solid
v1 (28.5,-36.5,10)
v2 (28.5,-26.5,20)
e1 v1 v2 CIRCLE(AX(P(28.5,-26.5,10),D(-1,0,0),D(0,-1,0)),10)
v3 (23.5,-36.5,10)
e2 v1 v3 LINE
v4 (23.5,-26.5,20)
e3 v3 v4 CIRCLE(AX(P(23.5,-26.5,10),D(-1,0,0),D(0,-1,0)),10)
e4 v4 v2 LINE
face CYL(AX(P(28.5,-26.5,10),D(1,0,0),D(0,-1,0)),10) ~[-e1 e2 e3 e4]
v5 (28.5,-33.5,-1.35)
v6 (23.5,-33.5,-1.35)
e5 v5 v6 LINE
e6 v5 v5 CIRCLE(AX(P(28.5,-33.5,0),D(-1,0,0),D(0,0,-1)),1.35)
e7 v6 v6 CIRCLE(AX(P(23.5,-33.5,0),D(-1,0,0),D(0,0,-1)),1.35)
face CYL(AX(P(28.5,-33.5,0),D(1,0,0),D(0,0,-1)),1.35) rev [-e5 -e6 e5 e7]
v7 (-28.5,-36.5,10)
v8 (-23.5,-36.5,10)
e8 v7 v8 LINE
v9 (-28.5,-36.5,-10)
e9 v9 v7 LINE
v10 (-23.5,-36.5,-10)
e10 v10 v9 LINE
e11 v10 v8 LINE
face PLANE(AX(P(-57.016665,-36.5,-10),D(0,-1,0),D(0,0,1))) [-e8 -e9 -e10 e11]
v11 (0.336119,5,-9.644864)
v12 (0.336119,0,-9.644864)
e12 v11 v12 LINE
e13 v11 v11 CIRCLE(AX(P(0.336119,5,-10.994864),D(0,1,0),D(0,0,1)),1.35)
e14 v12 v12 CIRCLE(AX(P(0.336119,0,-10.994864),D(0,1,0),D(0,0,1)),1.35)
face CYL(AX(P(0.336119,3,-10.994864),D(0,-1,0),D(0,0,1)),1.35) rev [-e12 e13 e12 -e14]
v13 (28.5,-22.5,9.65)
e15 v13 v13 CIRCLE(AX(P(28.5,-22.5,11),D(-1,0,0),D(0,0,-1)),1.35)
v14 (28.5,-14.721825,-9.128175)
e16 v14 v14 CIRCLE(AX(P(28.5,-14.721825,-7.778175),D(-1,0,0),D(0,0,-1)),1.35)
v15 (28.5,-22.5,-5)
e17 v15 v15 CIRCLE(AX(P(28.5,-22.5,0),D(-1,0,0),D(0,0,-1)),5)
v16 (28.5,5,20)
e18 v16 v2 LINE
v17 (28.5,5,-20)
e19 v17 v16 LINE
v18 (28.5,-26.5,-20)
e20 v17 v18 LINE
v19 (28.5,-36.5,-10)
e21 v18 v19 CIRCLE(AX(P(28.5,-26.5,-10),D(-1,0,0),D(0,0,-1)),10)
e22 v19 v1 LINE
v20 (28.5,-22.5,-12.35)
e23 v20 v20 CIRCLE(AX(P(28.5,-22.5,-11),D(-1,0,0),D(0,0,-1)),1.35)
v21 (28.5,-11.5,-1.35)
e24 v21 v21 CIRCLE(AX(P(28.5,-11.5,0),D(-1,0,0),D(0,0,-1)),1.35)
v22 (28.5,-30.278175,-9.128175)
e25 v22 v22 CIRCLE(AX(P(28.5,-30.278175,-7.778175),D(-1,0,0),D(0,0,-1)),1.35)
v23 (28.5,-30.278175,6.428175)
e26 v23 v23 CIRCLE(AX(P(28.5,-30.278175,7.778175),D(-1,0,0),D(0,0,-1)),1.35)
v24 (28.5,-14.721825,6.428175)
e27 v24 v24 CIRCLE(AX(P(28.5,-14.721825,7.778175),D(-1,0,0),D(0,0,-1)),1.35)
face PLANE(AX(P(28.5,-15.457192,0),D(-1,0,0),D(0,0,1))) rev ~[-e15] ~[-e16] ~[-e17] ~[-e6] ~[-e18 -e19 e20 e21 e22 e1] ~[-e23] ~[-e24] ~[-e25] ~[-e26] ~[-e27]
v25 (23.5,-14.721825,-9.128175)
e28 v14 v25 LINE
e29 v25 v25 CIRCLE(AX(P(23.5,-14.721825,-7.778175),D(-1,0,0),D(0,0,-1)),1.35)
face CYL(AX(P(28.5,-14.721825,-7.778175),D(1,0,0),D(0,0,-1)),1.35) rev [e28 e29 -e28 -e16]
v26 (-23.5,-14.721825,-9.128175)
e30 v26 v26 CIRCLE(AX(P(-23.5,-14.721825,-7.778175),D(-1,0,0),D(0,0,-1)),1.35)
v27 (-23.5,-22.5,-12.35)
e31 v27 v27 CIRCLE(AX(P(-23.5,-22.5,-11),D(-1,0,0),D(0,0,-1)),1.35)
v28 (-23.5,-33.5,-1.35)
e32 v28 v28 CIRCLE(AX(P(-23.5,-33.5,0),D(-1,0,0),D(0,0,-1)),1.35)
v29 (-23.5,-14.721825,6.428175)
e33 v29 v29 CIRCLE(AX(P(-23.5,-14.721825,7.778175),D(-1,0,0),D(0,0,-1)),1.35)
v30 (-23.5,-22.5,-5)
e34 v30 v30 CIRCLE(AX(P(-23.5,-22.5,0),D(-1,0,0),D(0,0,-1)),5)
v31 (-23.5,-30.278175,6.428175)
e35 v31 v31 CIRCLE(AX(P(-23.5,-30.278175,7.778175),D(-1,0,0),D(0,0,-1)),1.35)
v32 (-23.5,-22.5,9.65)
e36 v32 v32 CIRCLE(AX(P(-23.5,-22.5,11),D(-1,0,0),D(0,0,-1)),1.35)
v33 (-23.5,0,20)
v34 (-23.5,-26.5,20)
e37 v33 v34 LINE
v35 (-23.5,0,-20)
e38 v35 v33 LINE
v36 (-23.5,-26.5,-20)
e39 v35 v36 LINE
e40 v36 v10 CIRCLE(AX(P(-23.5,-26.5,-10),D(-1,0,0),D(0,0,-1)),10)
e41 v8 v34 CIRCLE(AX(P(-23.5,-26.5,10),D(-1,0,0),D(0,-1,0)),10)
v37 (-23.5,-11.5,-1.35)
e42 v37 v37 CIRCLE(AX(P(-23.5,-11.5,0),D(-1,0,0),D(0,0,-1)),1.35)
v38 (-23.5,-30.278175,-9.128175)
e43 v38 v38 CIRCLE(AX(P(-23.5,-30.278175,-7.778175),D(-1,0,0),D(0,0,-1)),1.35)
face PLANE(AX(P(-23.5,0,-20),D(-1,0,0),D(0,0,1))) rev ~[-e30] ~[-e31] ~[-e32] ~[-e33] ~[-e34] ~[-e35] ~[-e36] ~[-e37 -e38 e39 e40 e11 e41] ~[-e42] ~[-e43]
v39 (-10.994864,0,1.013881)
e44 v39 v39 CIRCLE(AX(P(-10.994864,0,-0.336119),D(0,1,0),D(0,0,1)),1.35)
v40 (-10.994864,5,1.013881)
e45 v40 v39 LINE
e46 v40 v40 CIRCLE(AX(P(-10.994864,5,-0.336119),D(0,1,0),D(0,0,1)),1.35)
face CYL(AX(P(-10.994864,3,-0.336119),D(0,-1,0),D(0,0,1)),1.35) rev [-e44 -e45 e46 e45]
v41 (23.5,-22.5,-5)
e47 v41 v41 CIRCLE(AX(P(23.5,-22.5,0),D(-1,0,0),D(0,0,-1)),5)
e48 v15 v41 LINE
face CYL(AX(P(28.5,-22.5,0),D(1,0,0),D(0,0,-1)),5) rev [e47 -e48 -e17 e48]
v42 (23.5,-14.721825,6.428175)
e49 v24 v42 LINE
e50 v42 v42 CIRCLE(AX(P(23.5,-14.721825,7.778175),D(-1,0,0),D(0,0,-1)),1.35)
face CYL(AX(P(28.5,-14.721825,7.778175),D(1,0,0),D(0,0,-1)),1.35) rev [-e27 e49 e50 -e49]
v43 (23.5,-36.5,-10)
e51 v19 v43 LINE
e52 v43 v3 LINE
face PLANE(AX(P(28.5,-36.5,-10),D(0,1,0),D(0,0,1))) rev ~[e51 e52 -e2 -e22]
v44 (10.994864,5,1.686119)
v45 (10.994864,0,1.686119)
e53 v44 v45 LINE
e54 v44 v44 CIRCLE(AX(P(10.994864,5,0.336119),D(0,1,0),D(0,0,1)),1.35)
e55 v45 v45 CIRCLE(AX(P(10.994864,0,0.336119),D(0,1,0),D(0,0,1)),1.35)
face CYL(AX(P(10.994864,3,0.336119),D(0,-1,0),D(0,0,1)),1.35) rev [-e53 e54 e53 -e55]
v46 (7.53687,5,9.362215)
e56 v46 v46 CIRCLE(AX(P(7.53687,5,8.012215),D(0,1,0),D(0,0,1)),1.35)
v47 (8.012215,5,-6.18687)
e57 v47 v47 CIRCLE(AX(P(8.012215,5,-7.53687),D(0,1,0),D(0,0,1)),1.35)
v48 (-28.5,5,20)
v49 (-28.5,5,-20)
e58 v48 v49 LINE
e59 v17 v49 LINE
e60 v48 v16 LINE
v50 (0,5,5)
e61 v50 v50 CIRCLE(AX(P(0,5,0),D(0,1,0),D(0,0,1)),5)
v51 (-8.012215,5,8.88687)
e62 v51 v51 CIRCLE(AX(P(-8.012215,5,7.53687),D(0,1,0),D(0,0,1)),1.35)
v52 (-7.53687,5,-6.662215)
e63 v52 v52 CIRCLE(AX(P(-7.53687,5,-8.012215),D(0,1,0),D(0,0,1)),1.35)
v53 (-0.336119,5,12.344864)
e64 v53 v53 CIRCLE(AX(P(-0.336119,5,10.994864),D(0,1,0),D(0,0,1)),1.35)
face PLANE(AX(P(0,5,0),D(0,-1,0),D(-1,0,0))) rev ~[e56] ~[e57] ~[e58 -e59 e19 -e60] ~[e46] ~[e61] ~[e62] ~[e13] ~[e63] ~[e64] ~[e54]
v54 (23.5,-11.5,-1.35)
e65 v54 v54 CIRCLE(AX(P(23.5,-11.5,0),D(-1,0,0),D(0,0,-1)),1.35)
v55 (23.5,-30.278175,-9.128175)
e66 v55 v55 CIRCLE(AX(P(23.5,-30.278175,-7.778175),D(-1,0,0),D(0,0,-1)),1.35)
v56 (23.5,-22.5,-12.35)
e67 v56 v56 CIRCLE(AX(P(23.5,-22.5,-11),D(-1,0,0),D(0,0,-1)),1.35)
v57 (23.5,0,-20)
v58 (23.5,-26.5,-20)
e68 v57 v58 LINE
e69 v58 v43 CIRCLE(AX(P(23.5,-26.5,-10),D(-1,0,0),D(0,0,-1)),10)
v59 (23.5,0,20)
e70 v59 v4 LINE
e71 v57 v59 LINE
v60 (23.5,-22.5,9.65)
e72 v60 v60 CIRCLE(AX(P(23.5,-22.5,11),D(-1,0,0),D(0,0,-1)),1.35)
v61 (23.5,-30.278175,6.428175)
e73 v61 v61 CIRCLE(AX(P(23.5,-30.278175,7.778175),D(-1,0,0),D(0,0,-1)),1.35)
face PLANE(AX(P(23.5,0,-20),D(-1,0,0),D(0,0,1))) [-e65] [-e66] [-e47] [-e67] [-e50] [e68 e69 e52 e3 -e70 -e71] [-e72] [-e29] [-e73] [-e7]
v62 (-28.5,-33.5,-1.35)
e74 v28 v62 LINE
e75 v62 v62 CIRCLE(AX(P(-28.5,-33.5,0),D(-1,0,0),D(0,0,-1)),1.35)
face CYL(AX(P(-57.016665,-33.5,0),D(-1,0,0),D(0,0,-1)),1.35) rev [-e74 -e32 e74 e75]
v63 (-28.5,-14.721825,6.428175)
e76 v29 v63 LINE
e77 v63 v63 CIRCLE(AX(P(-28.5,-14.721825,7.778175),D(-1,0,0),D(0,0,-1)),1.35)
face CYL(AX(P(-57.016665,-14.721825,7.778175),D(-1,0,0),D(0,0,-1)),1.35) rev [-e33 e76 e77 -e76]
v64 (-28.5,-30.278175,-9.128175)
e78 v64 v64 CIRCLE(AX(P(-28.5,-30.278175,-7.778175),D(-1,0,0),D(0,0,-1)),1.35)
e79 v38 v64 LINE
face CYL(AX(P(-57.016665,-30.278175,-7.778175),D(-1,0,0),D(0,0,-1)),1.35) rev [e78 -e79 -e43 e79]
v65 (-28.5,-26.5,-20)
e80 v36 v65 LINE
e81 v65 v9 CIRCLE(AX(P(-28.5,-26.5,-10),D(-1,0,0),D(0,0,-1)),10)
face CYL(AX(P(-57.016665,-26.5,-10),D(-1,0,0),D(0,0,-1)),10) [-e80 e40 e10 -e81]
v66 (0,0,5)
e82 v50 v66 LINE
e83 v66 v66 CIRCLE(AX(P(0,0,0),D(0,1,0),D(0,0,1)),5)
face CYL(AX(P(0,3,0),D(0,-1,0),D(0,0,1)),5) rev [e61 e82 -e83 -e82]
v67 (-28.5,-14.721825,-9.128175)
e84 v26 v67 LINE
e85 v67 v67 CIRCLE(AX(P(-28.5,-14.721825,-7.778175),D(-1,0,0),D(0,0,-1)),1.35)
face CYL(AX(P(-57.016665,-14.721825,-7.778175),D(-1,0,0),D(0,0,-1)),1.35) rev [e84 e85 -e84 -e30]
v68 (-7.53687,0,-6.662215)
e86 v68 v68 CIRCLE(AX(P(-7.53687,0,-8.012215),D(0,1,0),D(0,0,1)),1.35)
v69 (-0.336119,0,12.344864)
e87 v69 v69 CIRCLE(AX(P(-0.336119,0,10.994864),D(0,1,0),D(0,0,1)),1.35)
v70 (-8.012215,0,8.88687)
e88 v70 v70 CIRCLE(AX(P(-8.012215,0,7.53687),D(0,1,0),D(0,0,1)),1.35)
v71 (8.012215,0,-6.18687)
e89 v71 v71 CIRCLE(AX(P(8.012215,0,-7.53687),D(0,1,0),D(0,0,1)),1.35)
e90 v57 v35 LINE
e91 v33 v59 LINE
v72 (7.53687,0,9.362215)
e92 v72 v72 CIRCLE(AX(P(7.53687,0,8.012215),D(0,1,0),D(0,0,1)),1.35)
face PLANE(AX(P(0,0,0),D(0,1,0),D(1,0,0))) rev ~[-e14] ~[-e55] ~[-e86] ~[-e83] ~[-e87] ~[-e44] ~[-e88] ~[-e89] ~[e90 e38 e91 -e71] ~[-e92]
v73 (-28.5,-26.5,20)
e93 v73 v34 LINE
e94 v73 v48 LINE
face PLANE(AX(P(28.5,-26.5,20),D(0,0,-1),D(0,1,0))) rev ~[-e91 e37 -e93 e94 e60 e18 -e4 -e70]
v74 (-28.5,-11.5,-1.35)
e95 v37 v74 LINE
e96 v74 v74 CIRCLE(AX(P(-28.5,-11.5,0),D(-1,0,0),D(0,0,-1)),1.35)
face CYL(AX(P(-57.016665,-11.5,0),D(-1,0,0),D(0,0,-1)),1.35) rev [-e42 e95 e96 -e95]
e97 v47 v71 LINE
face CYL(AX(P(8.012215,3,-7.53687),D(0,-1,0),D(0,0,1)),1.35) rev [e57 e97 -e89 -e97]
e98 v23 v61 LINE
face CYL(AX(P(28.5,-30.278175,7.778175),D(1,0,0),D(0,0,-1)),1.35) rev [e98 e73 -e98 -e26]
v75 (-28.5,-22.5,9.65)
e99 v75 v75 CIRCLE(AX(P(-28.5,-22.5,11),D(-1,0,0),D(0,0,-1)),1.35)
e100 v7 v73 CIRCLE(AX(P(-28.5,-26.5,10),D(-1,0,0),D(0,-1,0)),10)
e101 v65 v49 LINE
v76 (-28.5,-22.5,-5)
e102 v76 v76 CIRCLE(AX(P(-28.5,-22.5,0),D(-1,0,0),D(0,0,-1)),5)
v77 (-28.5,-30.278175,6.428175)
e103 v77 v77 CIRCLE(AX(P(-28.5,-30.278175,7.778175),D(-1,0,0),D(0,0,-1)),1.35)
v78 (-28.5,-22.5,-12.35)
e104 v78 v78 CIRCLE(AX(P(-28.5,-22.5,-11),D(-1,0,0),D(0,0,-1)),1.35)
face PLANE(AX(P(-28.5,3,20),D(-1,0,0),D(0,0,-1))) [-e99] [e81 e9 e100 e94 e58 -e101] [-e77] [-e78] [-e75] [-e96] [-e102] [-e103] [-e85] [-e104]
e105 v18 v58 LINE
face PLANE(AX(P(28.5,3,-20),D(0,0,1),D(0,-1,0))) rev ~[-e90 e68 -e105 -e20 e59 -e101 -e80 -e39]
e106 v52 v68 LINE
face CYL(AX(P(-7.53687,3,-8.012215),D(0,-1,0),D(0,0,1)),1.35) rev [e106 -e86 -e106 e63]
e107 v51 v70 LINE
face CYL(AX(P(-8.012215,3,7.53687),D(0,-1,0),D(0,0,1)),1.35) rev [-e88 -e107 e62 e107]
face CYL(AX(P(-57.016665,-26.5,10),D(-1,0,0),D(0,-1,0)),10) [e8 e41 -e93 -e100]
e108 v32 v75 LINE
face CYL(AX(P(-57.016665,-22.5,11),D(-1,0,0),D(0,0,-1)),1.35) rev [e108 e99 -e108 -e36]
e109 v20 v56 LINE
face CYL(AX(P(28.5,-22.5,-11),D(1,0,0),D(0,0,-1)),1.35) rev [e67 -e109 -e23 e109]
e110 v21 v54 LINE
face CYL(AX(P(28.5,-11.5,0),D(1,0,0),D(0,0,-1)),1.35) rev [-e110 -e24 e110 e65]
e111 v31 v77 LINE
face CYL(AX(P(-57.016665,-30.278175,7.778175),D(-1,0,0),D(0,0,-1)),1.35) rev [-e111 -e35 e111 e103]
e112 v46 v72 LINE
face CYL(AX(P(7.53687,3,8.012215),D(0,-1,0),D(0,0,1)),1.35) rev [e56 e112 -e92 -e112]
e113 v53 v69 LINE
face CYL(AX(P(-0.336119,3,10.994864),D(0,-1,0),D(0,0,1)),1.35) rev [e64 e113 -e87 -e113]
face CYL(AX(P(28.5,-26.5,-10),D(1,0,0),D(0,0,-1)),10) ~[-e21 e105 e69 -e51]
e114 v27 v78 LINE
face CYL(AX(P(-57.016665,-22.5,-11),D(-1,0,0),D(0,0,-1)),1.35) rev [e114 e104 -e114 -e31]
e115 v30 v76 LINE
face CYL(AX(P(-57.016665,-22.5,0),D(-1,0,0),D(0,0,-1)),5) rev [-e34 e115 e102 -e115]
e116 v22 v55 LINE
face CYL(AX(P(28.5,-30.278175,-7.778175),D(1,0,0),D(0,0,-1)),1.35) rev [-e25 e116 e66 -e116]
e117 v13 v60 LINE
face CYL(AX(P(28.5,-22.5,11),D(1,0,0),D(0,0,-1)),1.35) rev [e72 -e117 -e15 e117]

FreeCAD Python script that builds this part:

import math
import FreeCAD as App
import Part
import Sketcher
Q = App.Units.Quantity

doc = App.newDocument("Part")
body = doc.addObject("PartDesign::Body", "Body")

# Sketch on XZ plane
sketch1 = body.newObject("Sketcher::SketchObject", "Sketch")
sketch1.AttachmentSupport = (doc.getObject("XZ_Plane"), [""])
sketch1.MapMode = "FlatFace"
sketch1.addGeometry([
    Part.LineSegment(App.Vector(26.5, 20, 0), App.Vector(26.5, -20, 0)),  # 0
    Part.LineSegment(App.Vector(26.5, -20, 0), App.Vector(-26.5, -20, 0)),  # 1
    Part.LineSegment(App.Vector(-26.5, -20, 0), App.Vector(-26.5, 20, 0)),  # 2
    Part.LineSegment(App.Vector(-26.5, 20, 0), App.Vector(26.5, 20, 0)),  # 3
    Part.Circle(App.Vector(-8, 7.5, 0), App.Vector(0, 0, 1), 1.4),  # 4
    Part.Circle(App.Vector(-0.3, 11, 0), App.Vector(0, 0, 1), 1.4),  # 5
    Part.Circle(App.Vector(7.5, 8, 0), App.Vector(0, 0, 1), 1.4),  # 6
    Part.Circle(App.Vector(11, 0.3, 0), App.Vector(0, 0, 1), 1.4),  # 7
    Part.Circle(App.Vector(-11, -0.3, 0), App.Vector(0, 0, 1), 1.4),  # 8
    Part.Circle(App.Vector(-7.5, -8, 0), App.Vector(0, 0, 1), 1.4),  # 9
    Part.Circle(App.Vector(0, 0, 0), App.Vector(0, 0, 1), 5),  # 10
    Part.Circle(App.Vector(0.3, -11, 0), App.Vector(0, 0, 1), 1.4),  # 11
    Part.Circle(App.Vector(8, -7.5, 0), App.Vector(0, 0, 1), 1.4),  # 12
], False)
sketch1.addConstraint([
    Sketcher.Constraint("Coincident", 0, 2, 1, 1),
    Sketcher.Constraint("Coincident", 1, 2, 2, 1),
    Sketcher.Constraint("Coincident", 2, 2, 3, 1),
    Sketcher.Constraint("Coincident", 3, 2, 0, 1),
    Sketcher.Constraint("Vertical", 0),
    Sketcher.Constraint("Horizontal", 1),
    Sketcher.Constraint("Vertical", 2),
    Sketcher.Constraint("Horizontal", 3),
    Sketcher.Constraint("Coincident", 10, 3, -1, 1),
    Sketcher.Constraint("Equal", 4, 5),
    Sketcher.Constraint("Equal", 5, 6),
    Sketcher.Constraint("Equal", 6, 7),
    Sketcher.Constraint("Equal", 7, 8),
    Sketcher.Constraint("Equal", 8, 9),
    Sketcher.Constraint("Equal", 9, 11),
    Sketcher.Constraint("Equal", 11, 12),
    Sketcher.Constraint("Symmetric", 7, 3, 8, 3, -1, 1),
    Sketcher.Constraint("Symmetric", 6, 3, 9, 3, -1, 1),
    Sketcher.Constraint("Symmetric", 5, 3, 11, 3, -1, 1),
    Sketcher.Constraint("Symmetric", 4, 3, 12, 3, -1, 1),
    Sketcher.Constraint("Symmetric", 0, 2, 2, 2, -1, 1),
    Sketcher.Constraint("Diameter", 10, Q("10 mm")),
    Sketcher.Constraint("Diameter", 4, Q("2.7 mm")),
    Sketcher.Constraint("DistanceX", 1, 2, 1, 1, Q("53 mm")),
    Sketcher.Constraint("DistanceY", 0, 2, 0, 1, Q("40 mm")),
    Sketcher.Constraint("DistanceY", -1, 1, 4, 3, Q("7.53687 mm")),
    Sketcher.Constraint("DistanceX", 5, 3, -1, 1, Q("0.336119 mm")),
    Sketcher.Constraint("DistanceX", -1, 1, 6, 3, Q("7.53687 mm")),
    Sketcher.Constraint("DistanceY", -1, 1, 7, 3, Q("0.336119 mm")),
    Sketcher.Constraint("DistanceY", 6, 3, 5, 3, Q("2.982649 mm")),
    Sketcher.Constraint("DistanceX", 4, 3, 7, 3, Q("19.007078 mm")),
    Sketcher.Constraint("DistanceX", 8, 3, 4, 3, Q("2.982649 mm")),
    Sketcher.Constraint("DistanceY", 9, 3, 5, 3, Q("19.007078 mm")),
])
pad1 = body.newObject("PartDesign::Pad", "Pad")
pad1.Profile = sketch1
pad1.Length = 3
pad1.Reversed = True

# Sketch on XZ plane
sketch2 = body.newObject("Sketcher::SketchObject", "Sketch001")
sketch2.AttachmentSupport = (doc.getObject("XZ_Plane"), [""])
sketch2.MapMode = "FlatFace"
sketch2.addGeometry([
    Part.LineSegment(App.Vector(-26.5, 20, 0), App.Vector(-26.5, -20, 0)),  # 0
    Part.LineSegment(App.Vector(-26.5, -20, 0), App.Vector(-23.5, -20, 0)),  # 1
    Part.LineSegment(App.Vector(-23.5, -20, 0), App.Vector(-23.5, 20, 0)),  # 2
    Part.LineSegment(App.Vector(-23.5, 20, 0), App.Vector(-26.5, 20, 0)),  # 3
    Part.LineSegment(App.Vector(23.5, 20, 0), App.Vector(23.5, -20, 0)),  # 4
    Part.LineSegment(App.Vector(23.5, -20, 0), App.Vector(26.5, -20, 0)),  # 5
    Part.LineSegment(App.Vector(26.5, -20, 0), App.Vector(26.5, 20, 0)),  # 6
    Part.LineSegment(App.Vector(26.5, 20, 0), App.Vector(23.5, 20, 0)),  # 7
], False)
sketch2.addConstraint([
    Sketcher.Constraint("Coincident", 0, 2, 1, 1),
    Sketcher.Constraint("Coincident", 1, 2, 2, 1),
    Sketcher.Constraint("Coincident", 2, 2, 3, 1),
    Sketcher.Constraint("Coincident", 3, 2, 0, 1),
    Sketcher.Constraint("Coincident", 4, 2, 5, 1),
    Sketcher.Constraint("Coincident", 5, 2, 6, 1),
    Sketcher.Constraint("Coincident", 6, 2, 7, 1),
    Sketcher.Constraint("Coincident", 7, 2, 4, 1),
    Sketcher.Constraint("Vertical", 0),
    Sketcher.Constraint("Horizontal", 1),
    Sketcher.Constraint("Vertical", 2),
    Sketcher.Constraint("Horizontal", 3),
    Sketcher.Constraint("Vertical", 4),
    Sketcher.Constraint("Horizontal", 5),
    Sketcher.Constraint("Vertical", 6),
    Sketcher.Constraint("Horizontal", 7),
    Sketcher.Constraint("Symmetric", 2, 2, 4, 2, -1, 1),
    Sketcher.Constraint("Symmetric", 0, 2, 6, 2, -1, 1),
    Sketcher.Constraint("Horizontal", 1, 2, 4, 2),
    Sketcher.Constraint("DistanceX", 1, 1, 1, 2, Q("3 mm")),
    Sketcher.Constraint("DistanceY", 0, 2, 0, 1, Q("40 mm")),
    Sketcher.Constraint("DistanceX", 1, 2, 4, 2, Q("47 mm")),
])
pad2 = body.newObject("PartDesign::Pad", "Pad001")
pad2.Profile = sketch2
pad2.Length = 60

# Sketch on YZ plane
sketch3 = body.newObject("Sketcher::SketchObject", "Sketch002")
sketch3.AttachmentSupport = (doc.getObject("YZ_Plane"), [""])
sketch3.MapMode = "FlatFace"
sketch3.AttachmentOffset = App.Placement(App.Vector(0, 0, 26.5), App.Rotation())
sketch3.addGeometry([
    Part.ArcOfCircle(Part.Circle(App.Vector(-26.5, 10, 0), App.Vector(0, 0, 1), 10), math.radians(90), math.radians(180)),  # 0
    Part.LineSegment(App.Vector(-26.5, 20, 0), App.Vector(-60, 20, 0)),  # 1
    Part.LineSegment(App.Vector(-60, 20, 0), App.Vector(-60, -20, 0)),  # 2
    Part.LineSegment(App.Vector(-60, -20, 0), App.Vector(-26.5, -20, 0)),  # 3
    Part.ArcOfCircle(Part.Circle(App.Vector(-26.5, -10, 0), App.Vector(0, 0, 1), 10), math.radians(180), math.radians(270)),  # 4
    Part.LineSegment(App.Vector(-36.5, -10, 0), App.Vector(-36.5, 10, 0)),  # 5
    Part.Circle(App.Vector(-22.5, 0, 0), App.Vector(0, 0, 1), 5),  # 6
    Part.Circle(App.Vector(-11.5, 0, 0), App.Vector(0, 0, 1), 1.4),  # 7
    Part.Circle(App.Vector(-14.7, -7.8, 0), App.Vector(0, 0, 1), 1.4),  # 8
    Part.Circle(App.Vector(-22.5, -11, 0), App.Vector(0, 0, 1), 1.4),  # 9
    Part.Circle(App.Vector(-30.3, -7.8, 0), App.Vector(0, 0, 1), 1.4),  # 10
    Part.Circle(App.Vector(-33.5, 0, 0), App.Vector(0, 0, 1), 1.4),  # 11
    Part.Circle(App.Vector(-30.3, 7.8, 0), App.Vector(0, 0, 1), 1.4),  # 12
    Part.Circle(App.Vector(-22.5, 11, 0), App.Vector(0, 0, 1), 1.4),  # 13
    Part.Circle(App.Vector(-14.7, 7.8, 0), App.Vector(0, 0, 1), 1.4),  # 14
], False)
sketch3.addConstraint([
    Sketcher.Constraint("Tangent", 0, 1, 1, 1),
    Sketcher.Constraint("Coincident", 1, 2, 2, 1),
    Sketcher.Constraint("Coincident", 2, 2, 3, 1),
    Sketcher.Constraint("Tangent", 3, 2, 4, 2),
    Sketcher.Constraint("Tangent", 4, 1, 5, 1),
    Sketcher.Constraint("Tangent", 5, 2, 0, 2),
    Sketcher.Constraint("Horizontal", 1),
    Sketcher.Constraint("Vertical", 2),
    Sketcher.Constraint("Horizontal", 3),
    Sketcher.Constraint("Vertical", 5),
    Sketcher.Constraint("Equal", 0, 4),
    Sketcher.Constraint("Equal", 7, 8),
    Sketcher.Constraint("Equal", 8, 9),
    Sketcher.Constraint("Equal", 9, 10),
    Sketcher.Constraint("Equal", 10, 11),
    Sketcher.Constraint("Equal", 11, 12),
    Sketcher.Constraint("Equal", 12, 13),
    Sketcher.Constraint("Equal", 13, 14),
    Sketcher.Constraint("Symmetric", 10, 3, 12, 3, -1),
    Sketcher.Constraint("Symmetric", 9, 3, 13, 3, -1),
    Sketcher.Constraint("Symmetric", 8, 3, 14, 3, -1),
    Sketcher.Constraint("PointOnObject", 6, 3, -1),
    Sketcher.Constraint("PointOnObject", 7, 3, -1),
    Sketcher.Constraint("PointOnObject", 11, 3, -1),
    Sketcher.Constraint("Horizontal", 8, 3, 10, 3),
    Sketcher.Constraint("Vertical", 6, 3, 9, 3),
    Sketcher.Constraint("Diameter", 6, Q("10 mm")),
    Sketcher.Constraint("Radius", 0, Q("10 mm")),
    Sketcher.Constraint("Diameter", 7, Q("2.7 mm")),
    Sketcher.Constraint("DistanceY", 2, 2, 2, 1, Q("40 mm")),
    Sketcher.Constraint("DistanceX", 1, 2, 1, 1, Q("33.5 mm")),
    Sketcher.Constraint("DistanceY", -1, 1, 0, 3, Q("10 mm")),
    Sketcher.Constraint("DistanceY", 9, 3, -1, 1, Q("11 mm")),
    Sketcher.Constraint("DistanceX", 1, 2, -1, 1, Q("60 mm")),
    Sketcher.Constraint("DistanceX", 0, 3, 6, 3, Q("4 mm")),
    Sketcher.Constraint("DistanceX", 6, 3, 7, 3, Q("11 mm")),
    Sketcher.Constraint("DistanceX", 11, 3, 6, 3, Q("11 mm")),
    Sketcher.Constraint("DistanceX", 10, 3, 8, 3, Q("15.556349 mm")),
    Sketcher.Constraint("DistanceY", 10, 3, 12, 3, Q("15.556349 mm")),
    Sketcher.Constraint("DistanceX", 8, 3, -1, 1, Q("14.721825 mm")),
])
pocket1 = body.newObject("PartDesign::Pocket", "Pocket")
pocket1.Profile = sketch3
pocket1.Type = "ThroughAll"
pocket1.Midplane = True

# Sketch on XZ plane
sketch4 = body.newObject("Sketcher::SketchObject", "Sketch003")
sketch4.AttachmentSupport = (doc.getObject("XZ_Plane"), [""])
sketch4.MapMode = "FlatFace"
sketch4.AttachmentOffset = App.Placement(App.Vector(0, 0, -3), App.Rotation())
sketch4.addGeometry([
    Part.LineSegment(App.Vector(28.5, -20, 0), App.Vector(-28.5, -20, 0)),  # 0
    Part.LineSegment(App.Vector(-28.5, -20, 0), App.Vector(-28.5, 20, 0)),  # 1
    Part.LineSegment(App.Vector(-28.5, 20, 0), App.Vector(28.5, 20, 0)),  # 2
    Part.LineSegment(App.Vector(28.5, 20, 0), App.Vector(28.5, -20, 0)),  # 3
    Part.Circle(App.Vector(7.5, 8, 0), App.Vector(0, 0, 1), 1.4),  # 4
    Part.Circle(App.Vector(11, 0.3, 0), App.Vector(0, 0, 1), 1.4),  # 5
    Part.Circle(App.Vector(-0.3, 11, 0), App.Vector(0, 0, 1), 1.4),  # 6
    Part.Circle(App.Vector(-8, 7.5, 0), App.Vector(0, 0, 1), 1.4),  # 7
    Part.Circle(App.Vector(8, -7.5, 0), App.Vector(0, 0, 1), 1.4),  # 8
    Part.Circle(App.Vector(0.3, -11, 0), App.Vector(0, 0, 1), 1.4),  # 9
    Part.Circle(App.Vector(0, 0, 0), App.Vector(0, 0, 1), 5),  # 10
    Part.Circle(App.Vector(-11, -0.3, 0), App.Vector(0, 0, 1), 1.4),  # 11
    Part.Circle(App.Vector(-7.5, -8, 0), App.Vector(0, 0, 1), 1.4),  # 12
], False)
sketch4.addConstraint([
    Sketcher.Constraint("Coincident", 0, 2, 1, 1),
    Sketcher.Constraint("Coincident", 1, 2, 2, 1),
    Sketcher.Constraint("Coincident", 2, 2, 3, 1),
    Sketcher.Constraint("Coincident", 3, 2, 0, 1),
    Sketcher.Constraint("Horizontal", 0),
    Sketcher.Constraint("Vertical", 1),
    Sketcher.Constraint("Horizontal", 2),
    Sketcher.Constraint("Vertical", 3),
    Sketcher.Constraint("Coincident", 10, 3, -1, 1),
    Sketcher.Constraint("Equal", 4, 5),
    Sketcher.Constraint("Equal", 5, 6),
    Sketcher.Constraint("Equal", 6, 7),
    Sketcher.Constraint("Equal", 7, 8),
    Sketcher.Constraint("Equal", 8, 9),
    Sketcher.Constraint("Equal", 9, 11),
    Sketcher.Constraint("Equal", 11, 12),
    Sketcher.Constraint("Symmetric", 7, 3, 8, 3, -1, 1),
    Sketcher.Constraint("Symmetric", 6, 3, 9, 3, -1, 1),
    Sketcher.Constraint("Symmetric", 5, 3, 11, 3, -1, 1),
    Sketcher.Constraint("Symmetric", 4, 3, 12, 3, -1, 1),
    Sketcher.Constraint("Symmetric", 0, 2, 2, 2, -1, 1),
    Sketcher.Constraint("Diameter", 10, Q("10 mm")),
    Sketcher.Constraint("Diameter", 4, Q("2.7 mm")),
    Sketcher.Constraint("DistanceX", 0, 2, 0, 1, Q("57 mm")),
    Sketcher.Constraint("DistanceY", 1, 1, 1, 2, Q("40 mm")),
    Sketcher.Constraint("DistanceX", -1, 1, 4, 3, Q("7.53687 mm")),
    Sketcher.Constraint("DistanceY", -1, 1, 5, 3, Q("0.336119 mm")),
    Sketcher.Constraint("DistanceX", 6, 3, -1, 1, Q("0.336119 mm")),
    Sketcher.Constraint("DistanceY", -1, 1, 7, 3, Q("7.53687 mm")),
    Sketcher.Constraint("DistanceY", 4, 3, 6, 3, Q("2.982649 mm")),
    Sketcher.Constraint("DistanceX", 7, 3, 5, 3, Q("19.007078 mm")),
    Sketcher.Constraint("DistanceX", 8, 3, 5, 3, Q("2.982649 mm")),
    Sketcher.Constraint("DistanceY", 9, 3, 4, 3, Q("19.007078 mm")),
])
pad3 = body.newObject("PartDesign::Pad", "Pad002")
pad3.Profile = sketch4
pad3.Length = 2
pad3.Reversed = True

# Sketch on YZ plane
sketch5 = body.newObject("Sketcher::SketchObject", "Sketch004")
sketch5.AttachmentSupport = (doc.getObject("YZ_Plane"), [""])
sketch5.MapMode = "FlatFace"
sketch5.AttachmentOffset = App.Placement(App.Vector(0, 0, -23.5), App.Rotation())
sketch5.addGeometry([
    Part.LineSegment(App.Vector(3, -20, 0), App.Vector(-26.5, -20, 0)),  # 0
    Part.ArcOfCircle(Part.Circle(App.Vector(-26.5, -10, 0), App.Vector(0, 0, 1), 10), math.radians(180), math.radians(270)),  # 1
    Part.LineSegment(App.Vector(-36.5, -10, 0), App.Vector(-36.5, 10, 0)),  # 2
    Part.ArcOfCircle(Part.Circle(App.Vector(-26.5, 10, 0), App.Vector(0, 0, 1), 10), math.radians(90), math.radians(180)),  # 3
    Part.LineSegment(App.Vector(-26.5, 20, 0), App.Vector(3, 20, 0)),  # 4
    Part.LineSegment(App.Vector(3, 20, 0), App.Vector(3, -20, 0)),  # 5
    Part.Circle(App.Vector(-30.3, -7.8, 0), App.Vector(0, 0, 1), 1.4),  # 6
    Part.Circle(App.Vector(-33.5, 0, 0), App.Vector(0, 0, 1), 1.4),  # 7
    Part.Circle(App.Vector(-30.3, 7.8, 0), App.Vector(0, 0, 1), 1.4),  # 8
    Part.Circle(App.Vector(-22.5, -11, 0), App.Vector(0, 0, 1), 1.4),  # 9
    Part.Circle(App.Vector(-14.7, -7.8, 0), App.Vector(0, 0, 1), 1.4),  # 10
    Part.Circle(App.Vector(-22.5, 0, 0), App.Vector(0, 0, 1), 5),  # 11
    Part.Circle(App.Vector(-22.5, 11, 0), App.Vector(0, 0, 1), 1.4),  # 12
    Part.Circle(App.Vector(-11.5, 0, 0), App.Vector(0, 0, 1), 1.4),  # 13
    Part.Circle(App.Vector(-14.7, 7.8, 0), App.Vector(0, 0, 1), 1.4),  # 14
], False)
sketch5.addConstraint([
    Sketcher.Constraint("Tangent", 0, 2, 1, 2),
    Sketcher.Constraint("Tangent", 1, 1, 2, 1),
    Sketcher.Constraint("Tangent", 2, 2, 3, 2),
    Sketcher.Constraint("Tangent", 3, 1, 4, 1),
    Sketcher.Constraint("Coincident", 4, 2, 5, 1),
    Sketcher.Constraint("Coincident", 5, 2, 0, 1),
    Sketcher.Constraint("Horizontal", 0),
    Sketcher.Constraint("Vertical", 2),
    Sketcher.Constraint("Horizontal", 4),
    Sketcher.Constraint("Vertical", 5),
    Sketcher.Constraint("Equal", 1, 3),
    Sketcher.Constraint("Equal", 6, 7),
    Sketcher.Constraint("Equal", 7, 8),
    Sketcher.Constraint("Equal", 8, 9),
    Sketcher.Constraint("Equal", 9, 10),
    Sketcher.Constraint("Equal", 10, 12),
    Sketcher.Constraint("Equal", 12, 13),
    Sketcher.Constraint("Equal", 13, 14),
    Sketcher.Constraint("Symmetric", 6, 3, 8, 3, -1),
    Sketcher.Constraint("Symmetric", 9, 3, 12, 3, -1),
    Sketcher.Constraint("Symmetric", 10, 3, 14, 3, -1),
    Sketcher.Constraint("PointOnObject", 7, 3, -1),
    Sketcher.Constraint("PointOnObject", 11, 3, -1),
    Sketcher.Constraint("PointOnObject", 13, 3, -1),
    Sketcher.Constraint("Horizontal", 6, 3, 10, 3),
    Sketcher.Constraint("Vertical", 9, 3, 11, 3),
    Sketcher.Constraint("Diameter", 11, Q("10 mm")),
    Sketcher.Constraint("Radius", 1, Q("10 mm")),
    Sketcher.Constraint("Diameter", 6, Q("2.7 mm")),
    Sketcher.Constraint("DistanceY", 2, 1, 2, 2, Q("20 mm")),
    Sketcher.Constraint("DistanceX", 0, 2, 0, 1, Q("29.5 mm")),
    Sketcher.Constraint("DistanceY", 1, 3, -1, 1, Q("10 mm")),
    Sketcher.Constraint("DistanceY", 9, 3, -1, 1, Q("11 mm")),
    Sketcher.Constraint("DistanceX", -1, 1, 4, 2, Q("3 mm")),
    Sketcher.Constraint("DistanceX", 7, 3, 1, 3, Q("7 mm")),
    Sketcher.Constraint("DistanceX", 1, 3, 9, 3, Q("4 mm")),
    Sketcher.Constraint("DistanceX", 11, 3, 13, 3, Q("11 mm")),
    Sketcher.Constraint("DistanceY", 6, 3, 8, 3, Q("15.556349 mm")),
    Sketcher.Constraint("DistanceX", 6, 3, 10, 3, Q("15.556349 mm")),
    Sketcher.Constraint("DistanceX", 6, 3, -1, 1, Q("30.278175 mm")),
])
pad4 = body.newObject("PartDesign::Pad", "Pad003")
pad4.Profile = sketch5
pad4.Length = 5
pad4.Reversed = True

# Sketch on YZ plane
sketch6 = body.newObject("Sketcher::SketchObject", "Sketch005")
sketch6.AttachmentSupport = (doc.getObject("YZ_Plane"), [""])
sketch6.MapMode = "FlatFace"
sketch6.AttachmentOffset = App.Placement(App.Vector(0, 0, 28.5), App.Rotation())
sketch6.addGeometry([
    Part.LineSegment(App.Vector(3, -20, 0), App.Vector(-26.5, -20, 0)),  # 0
    Part.ArcOfCircle(Part.Circle(App.Vector(-26.5, -10, 0), App.Vector(0, 0, 1), 10), math.radians(180), math.radians(270)),  # 1
    Part.LineSegment(App.Vector(-36.5, -10, 0), App.Vector(-36.5, 10, 0)),  # 2
    Part.ArcOfCircle(Part.Circle(App.Vector(-26.5, 10, 0), App.Vector(0, 0, 1), 10), math.radians(90), math.radians(180)),  # 3
    Part.LineSegment(App.Vector(-26.5, 20, 0), App.Vector(3, 20, 0)),  # 4
    Part.LineSegment(App.Vector(3, 20, 0), App.Vector(3, -20, 0)),  # 5
    Part.Circle(App.Vector(-30.3, -7.8, 0), App.Vector(0, 0, 1), 1.4),  # 6
    Part.Circle(App.Vector(-33.5, 0, 0), App.Vector(0, 0, 1), 1.4),  # 7
    Part.Circle(App.Vector(-30.3, 7.8, 0), App.Vector(0, 0, 1), 1.4),  # 8
    Part.Circle(App.Vector(-22.5, -11, 0), App.Vector(0, 0, 1), 1.4),  # 9
    Part.Circle(App.Vector(-14.7, -7.8, 0), App.Vector(0, 0, 1), 1.4),  # 10
    Part.Circle(App.Vector(-22.5, 0, 0), App.Vector(0, 0, 1), 5),  # 11
    Part.Circle(App.Vector(-22.5, 11, 0), App.Vector(0, 0, 1), 1.4),  # 12
    Part.Circle(App.Vector(-11.5, 0, 0), App.Vector(0, 0, 1), 1.4),  # 13
    Part.Circle(App.Vector(-14.7, 7.8, 0), App.Vector(0, 0, 1), 1.4),  # 14
], False)
sketch6.addConstraint([
    Sketcher.Constraint("Tangent", 0, 2, 1, 2),
    Sketcher.Constraint("Tangent", 1, 1, 2, 1),
    Sketcher.Constraint("Tangent", 2, 2, 3, 2),
    Sketcher.Constraint("Tangent", 3, 1, 4, 1),
    Sketcher.Constraint("Coincident", 4, 2, 5, 1),
    Sketcher.Constraint("Coincident", 5, 2, 0, 1),
    Sketcher.Constraint("Horizontal", 0),
    Sketcher.Constraint("Vertical", 2),
    Sketcher.Constraint("Horizontal", 4),
    Sketcher.Constraint("Vertical", 5),
    Sketcher.Constraint("Equal", 1, 3),
    Sketcher.Constraint("Equal", 6, 7),
    Sketcher.Constraint("Equal", 7, 8),
    Sketcher.Constraint("Equal", 8, 9),
    Sketcher.Constraint("Equal", 9, 10),
    Sketcher.Constraint("Equal", 10, 12),
    Sketcher.Constraint("Equal", 12, 13),
    Sketcher.Constraint("Equal", 13, 14),
    Sketcher.Constraint("Symmetric", 6, 3, 8, 3, -1),
    Sketcher.Constraint("Symmetric", 9, 3, 12, 3, -1),
    Sketcher.Constraint("Symmetric", 10, 3, 14, 3, -1),
    Sketcher.Constraint("PointOnObject", 7, 3, -1),
    Sketcher.Constraint("PointOnObject", 11, 3, -1),
    Sketcher.Constraint("PointOnObject", 13, 3, -1),
    Sketcher.Constraint("Horizontal", 6, 3, 10, 3),
    Sketcher.Constraint("Vertical", 9, 3, 11, 3),
    Sketcher.Constraint("Diameter", 11, Q("10 mm")),
    Sketcher.Constraint("Radius", 1, Q("10 mm")),
    Sketcher.Constraint("Diameter", 6, Q("2.7 mm")),
    Sketcher.Constraint("DistanceY", 2, 1, 2, 2, Q("20 mm")),
    Sketcher.Constraint("DistanceX", 0, 2, 0, 1, Q("29.5 mm")),
    Sketcher.Constraint("DistanceY", 1, 3, -1, 1, Q("10 mm")),
    Sketcher.Constraint("DistanceY", 9, 3, -1, 1, Q("11 mm")),
    Sketcher.Constraint("DistanceX", -1, 1, 4, 2, Q("3 mm")),
    Sketcher.Constraint("DistanceX", 7, 3, 1, 3, Q("7 mm")),
    Sketcher.Constraint("DistanceX", 1, 3, 9, 3, Q("4 mm")),
    Sketcher.Constraint("DistanceX", 11, 3, 13, 3, Q("11 mm")),
    Sketcher.Constraint("DistanceY", 6, 3, 8, 3, Q("15.556349 mm")),
    Sketcher.Constraint("DistanceX", 6, 3, 10, 3, Q("15.556349 mm")),
    Sketcher.Constraint("DistanceX", 6, 3, -1, 1, Q("30.278175 mm")),
])
pad5 = body.newObject("PartDesign::Pad", "Pad004")
pad5.Profile = sketch6
pad5.Length = 5
pad5.Reversed = True

doc.recompute()
